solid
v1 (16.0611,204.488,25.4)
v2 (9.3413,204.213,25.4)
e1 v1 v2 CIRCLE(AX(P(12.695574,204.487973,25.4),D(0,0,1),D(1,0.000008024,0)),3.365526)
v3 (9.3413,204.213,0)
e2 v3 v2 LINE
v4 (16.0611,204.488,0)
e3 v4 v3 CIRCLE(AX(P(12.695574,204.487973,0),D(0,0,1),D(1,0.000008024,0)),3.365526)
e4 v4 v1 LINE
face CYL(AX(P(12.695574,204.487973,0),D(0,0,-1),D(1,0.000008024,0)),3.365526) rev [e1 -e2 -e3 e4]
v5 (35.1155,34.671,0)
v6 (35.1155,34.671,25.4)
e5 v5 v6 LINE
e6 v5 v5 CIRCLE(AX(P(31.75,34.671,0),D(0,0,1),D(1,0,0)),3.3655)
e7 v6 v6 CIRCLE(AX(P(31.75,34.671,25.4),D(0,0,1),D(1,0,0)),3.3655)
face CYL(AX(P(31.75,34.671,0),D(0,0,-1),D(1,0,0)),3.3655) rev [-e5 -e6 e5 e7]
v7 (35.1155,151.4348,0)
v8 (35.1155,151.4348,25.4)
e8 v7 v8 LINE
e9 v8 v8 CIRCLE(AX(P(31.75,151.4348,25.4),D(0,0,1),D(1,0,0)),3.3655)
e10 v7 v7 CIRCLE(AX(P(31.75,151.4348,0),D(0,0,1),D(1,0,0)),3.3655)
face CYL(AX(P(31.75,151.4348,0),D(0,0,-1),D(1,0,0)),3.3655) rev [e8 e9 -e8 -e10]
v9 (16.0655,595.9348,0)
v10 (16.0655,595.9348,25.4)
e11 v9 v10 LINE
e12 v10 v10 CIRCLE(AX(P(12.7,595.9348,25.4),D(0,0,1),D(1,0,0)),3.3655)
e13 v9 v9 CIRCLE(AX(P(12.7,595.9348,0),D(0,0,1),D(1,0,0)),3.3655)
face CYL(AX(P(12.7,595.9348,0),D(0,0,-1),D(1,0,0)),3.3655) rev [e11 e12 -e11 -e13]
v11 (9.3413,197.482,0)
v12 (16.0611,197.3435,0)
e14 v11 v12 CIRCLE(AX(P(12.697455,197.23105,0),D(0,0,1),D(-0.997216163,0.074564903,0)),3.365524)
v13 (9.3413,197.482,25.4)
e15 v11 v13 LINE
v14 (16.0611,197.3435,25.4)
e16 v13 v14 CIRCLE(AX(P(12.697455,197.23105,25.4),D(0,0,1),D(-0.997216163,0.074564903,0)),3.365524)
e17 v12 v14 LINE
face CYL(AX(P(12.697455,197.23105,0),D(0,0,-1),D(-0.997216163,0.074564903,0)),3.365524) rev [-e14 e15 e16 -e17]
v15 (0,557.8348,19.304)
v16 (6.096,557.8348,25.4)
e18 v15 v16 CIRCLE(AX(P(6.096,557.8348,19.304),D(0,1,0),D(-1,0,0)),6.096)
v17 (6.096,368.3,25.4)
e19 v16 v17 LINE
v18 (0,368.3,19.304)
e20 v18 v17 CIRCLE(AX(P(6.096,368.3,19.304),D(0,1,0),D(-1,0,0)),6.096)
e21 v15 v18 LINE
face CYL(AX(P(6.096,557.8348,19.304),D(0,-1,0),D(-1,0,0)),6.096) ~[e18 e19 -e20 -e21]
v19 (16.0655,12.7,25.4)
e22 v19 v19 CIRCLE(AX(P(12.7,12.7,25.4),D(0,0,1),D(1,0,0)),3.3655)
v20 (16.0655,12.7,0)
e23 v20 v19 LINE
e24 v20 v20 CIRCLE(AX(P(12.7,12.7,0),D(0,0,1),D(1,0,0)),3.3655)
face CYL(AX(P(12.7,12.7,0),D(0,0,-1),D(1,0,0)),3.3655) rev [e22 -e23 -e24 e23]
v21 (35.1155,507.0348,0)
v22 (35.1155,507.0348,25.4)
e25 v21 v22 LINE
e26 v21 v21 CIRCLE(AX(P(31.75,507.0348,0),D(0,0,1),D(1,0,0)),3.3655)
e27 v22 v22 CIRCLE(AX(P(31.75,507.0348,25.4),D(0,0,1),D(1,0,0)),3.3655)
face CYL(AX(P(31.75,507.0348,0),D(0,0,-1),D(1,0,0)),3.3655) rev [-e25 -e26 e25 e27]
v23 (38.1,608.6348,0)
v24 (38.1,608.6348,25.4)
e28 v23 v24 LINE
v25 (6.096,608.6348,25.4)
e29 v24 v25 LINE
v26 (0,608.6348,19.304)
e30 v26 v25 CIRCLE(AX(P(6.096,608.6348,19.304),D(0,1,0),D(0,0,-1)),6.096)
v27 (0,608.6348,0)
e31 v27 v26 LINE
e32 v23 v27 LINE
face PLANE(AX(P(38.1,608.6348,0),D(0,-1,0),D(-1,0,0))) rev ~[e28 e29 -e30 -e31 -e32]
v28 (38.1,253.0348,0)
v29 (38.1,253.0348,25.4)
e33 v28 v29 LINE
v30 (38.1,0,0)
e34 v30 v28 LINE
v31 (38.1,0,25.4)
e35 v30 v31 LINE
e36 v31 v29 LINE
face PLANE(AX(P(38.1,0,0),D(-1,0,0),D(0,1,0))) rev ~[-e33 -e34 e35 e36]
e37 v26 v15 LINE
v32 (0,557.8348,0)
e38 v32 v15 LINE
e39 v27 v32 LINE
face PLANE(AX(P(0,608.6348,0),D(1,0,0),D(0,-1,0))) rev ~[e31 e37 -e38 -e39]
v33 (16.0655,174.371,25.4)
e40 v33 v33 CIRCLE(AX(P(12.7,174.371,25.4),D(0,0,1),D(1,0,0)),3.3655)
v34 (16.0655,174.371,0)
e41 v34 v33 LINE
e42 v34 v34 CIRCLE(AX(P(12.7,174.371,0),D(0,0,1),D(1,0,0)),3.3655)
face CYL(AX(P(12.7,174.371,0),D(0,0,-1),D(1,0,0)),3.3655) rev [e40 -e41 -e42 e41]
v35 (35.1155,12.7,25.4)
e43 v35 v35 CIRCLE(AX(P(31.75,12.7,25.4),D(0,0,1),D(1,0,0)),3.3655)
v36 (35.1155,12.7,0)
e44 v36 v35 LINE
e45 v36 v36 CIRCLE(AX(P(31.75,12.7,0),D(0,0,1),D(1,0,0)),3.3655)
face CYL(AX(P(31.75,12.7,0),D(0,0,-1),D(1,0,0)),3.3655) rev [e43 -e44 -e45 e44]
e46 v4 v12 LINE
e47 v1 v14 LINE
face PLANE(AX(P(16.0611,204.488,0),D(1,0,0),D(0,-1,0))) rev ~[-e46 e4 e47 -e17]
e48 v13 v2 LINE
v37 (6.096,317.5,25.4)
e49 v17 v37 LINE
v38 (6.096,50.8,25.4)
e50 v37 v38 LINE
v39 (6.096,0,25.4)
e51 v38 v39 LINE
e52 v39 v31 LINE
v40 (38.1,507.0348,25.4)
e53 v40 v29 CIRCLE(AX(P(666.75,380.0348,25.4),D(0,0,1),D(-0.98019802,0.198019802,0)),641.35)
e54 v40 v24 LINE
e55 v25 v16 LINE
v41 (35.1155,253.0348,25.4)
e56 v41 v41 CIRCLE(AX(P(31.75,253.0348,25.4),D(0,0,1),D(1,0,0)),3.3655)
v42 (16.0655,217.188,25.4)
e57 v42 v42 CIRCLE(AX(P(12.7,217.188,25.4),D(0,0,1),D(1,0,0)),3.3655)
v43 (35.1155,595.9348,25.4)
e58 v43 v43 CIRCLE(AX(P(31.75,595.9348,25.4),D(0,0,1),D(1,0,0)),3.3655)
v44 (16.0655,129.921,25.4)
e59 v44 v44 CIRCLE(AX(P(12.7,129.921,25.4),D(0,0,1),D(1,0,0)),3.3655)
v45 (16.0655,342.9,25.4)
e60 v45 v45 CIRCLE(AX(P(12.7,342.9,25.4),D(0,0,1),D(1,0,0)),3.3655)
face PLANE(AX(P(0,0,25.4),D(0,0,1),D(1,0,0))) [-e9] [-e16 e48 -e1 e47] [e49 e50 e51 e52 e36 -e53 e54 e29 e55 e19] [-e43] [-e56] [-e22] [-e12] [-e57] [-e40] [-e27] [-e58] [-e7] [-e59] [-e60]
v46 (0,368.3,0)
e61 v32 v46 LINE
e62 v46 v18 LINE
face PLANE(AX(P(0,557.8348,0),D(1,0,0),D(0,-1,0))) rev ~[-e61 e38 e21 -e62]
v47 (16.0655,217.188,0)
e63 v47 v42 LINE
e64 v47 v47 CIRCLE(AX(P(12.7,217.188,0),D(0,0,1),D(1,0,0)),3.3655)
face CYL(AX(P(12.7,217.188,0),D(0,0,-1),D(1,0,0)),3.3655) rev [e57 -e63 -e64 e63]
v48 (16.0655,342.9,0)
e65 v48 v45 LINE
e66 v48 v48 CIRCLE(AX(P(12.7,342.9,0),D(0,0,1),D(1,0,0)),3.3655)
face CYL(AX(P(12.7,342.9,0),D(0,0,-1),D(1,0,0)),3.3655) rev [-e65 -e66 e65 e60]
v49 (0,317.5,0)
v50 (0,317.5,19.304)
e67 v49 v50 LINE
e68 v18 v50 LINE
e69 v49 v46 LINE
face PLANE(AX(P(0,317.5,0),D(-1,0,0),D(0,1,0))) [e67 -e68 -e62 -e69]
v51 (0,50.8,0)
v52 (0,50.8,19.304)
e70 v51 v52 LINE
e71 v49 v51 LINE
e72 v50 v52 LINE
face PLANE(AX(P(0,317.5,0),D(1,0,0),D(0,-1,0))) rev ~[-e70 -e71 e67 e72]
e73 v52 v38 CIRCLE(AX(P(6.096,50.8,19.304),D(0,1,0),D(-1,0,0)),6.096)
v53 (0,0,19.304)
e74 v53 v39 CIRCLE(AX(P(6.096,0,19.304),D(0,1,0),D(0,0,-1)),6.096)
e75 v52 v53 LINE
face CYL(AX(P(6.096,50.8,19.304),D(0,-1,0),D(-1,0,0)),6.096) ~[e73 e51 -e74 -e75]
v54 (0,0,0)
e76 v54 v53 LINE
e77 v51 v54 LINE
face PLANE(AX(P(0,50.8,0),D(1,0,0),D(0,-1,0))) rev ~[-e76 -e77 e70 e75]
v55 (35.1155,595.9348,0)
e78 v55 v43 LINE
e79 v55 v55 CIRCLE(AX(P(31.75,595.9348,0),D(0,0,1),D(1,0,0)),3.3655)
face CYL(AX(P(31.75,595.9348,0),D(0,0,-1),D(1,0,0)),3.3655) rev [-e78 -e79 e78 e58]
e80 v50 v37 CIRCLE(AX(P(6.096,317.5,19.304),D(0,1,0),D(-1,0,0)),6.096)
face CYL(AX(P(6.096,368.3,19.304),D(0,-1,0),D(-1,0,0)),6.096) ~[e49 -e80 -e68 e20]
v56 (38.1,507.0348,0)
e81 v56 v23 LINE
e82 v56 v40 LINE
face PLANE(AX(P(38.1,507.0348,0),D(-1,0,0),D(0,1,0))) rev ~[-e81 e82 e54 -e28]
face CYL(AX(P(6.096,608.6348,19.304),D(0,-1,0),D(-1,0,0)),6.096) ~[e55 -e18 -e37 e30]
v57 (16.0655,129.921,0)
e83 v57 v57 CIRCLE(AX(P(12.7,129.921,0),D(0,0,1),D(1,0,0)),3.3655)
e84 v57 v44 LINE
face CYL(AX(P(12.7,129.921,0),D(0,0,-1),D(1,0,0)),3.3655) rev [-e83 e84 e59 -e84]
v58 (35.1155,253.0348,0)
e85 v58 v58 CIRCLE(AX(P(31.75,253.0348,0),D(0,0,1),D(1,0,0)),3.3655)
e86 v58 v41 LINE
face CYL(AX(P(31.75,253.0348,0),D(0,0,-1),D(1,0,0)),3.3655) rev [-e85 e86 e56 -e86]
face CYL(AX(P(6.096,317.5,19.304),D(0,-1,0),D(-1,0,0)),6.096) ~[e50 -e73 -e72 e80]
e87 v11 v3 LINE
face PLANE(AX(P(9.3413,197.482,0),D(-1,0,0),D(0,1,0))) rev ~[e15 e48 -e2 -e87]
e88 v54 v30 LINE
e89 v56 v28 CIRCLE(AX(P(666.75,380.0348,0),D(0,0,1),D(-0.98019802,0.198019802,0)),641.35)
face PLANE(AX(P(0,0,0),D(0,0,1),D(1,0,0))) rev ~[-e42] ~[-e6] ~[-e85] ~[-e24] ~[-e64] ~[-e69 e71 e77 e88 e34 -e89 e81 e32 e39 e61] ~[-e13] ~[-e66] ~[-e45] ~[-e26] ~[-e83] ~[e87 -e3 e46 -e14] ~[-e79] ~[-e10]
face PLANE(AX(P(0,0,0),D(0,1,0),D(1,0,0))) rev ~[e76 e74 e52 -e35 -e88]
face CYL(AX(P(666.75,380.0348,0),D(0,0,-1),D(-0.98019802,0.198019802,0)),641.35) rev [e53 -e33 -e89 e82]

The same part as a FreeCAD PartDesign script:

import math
import FreeCAD as App
import Part
import Sketcher
Q = App.Units.Quantity


def edges_at(feature, points):
    """Names of the edges that pass closest to the given points."""
    edges = feature.Shape.Edges
    near = lambda p: min(range(len(edges)), key=lambda i: edges[i].distToShape(Part.Vertex(*p))[0])
    return sorted({f"Edge{near(p) + 1}" for p in points})

doc = App.newDocument("Part")
params = doc.addObject("Spreadsheet::Sheet", "Params")
for row, (alias, value) in enumerate([
    ("sketch1_height", "4 in"),
    ("sketch1_radius", "25.25 in"),
    ("sketch1_diameter", "0.265 in"),
    ("sketch1_width", "1.5 in"),
    ("sketch1_height2", "0.265 in"),
    ("pad1_length", "1 in"),
    ("fillet_radius", "0.24 in"),
], start=1):
    params.set(f"A{row}", alias)
    params.set(f"B{row}", "=" + value)
    params.setAlias(f"B{row}", alias)

body = doc.addObject("PartDesign::Body", "Body")

sketch1 = doc.addObject("Sketcher::SketchObject", "Sketch")
body.addObject(sketch1)
sketch1.AttachmentSupport = (doc.XY_Plane, [""])
sketch1.MapMode = "FlatFace"
sketch1.addGeometry(Part.LineSegment(App.Vector(0, 608.6, 0), App.Vector(0, 0, 0)), False)
sketch1.addGeometry(Part.LineSegment(App.Vector(0, 0, 0), App.Vector(38.1, 0, 0)), False)
sketch1.addGeometry(Part.LineSegment(App.Vector(38.1, 0, 0), App.Vector(38.1, 253, 0)), False)
sketch1.addGeometry(Part.ArcOfCircle(Part.Circle(App.Vector(666.8, 380, 0), App.Vector(0, 0, 1), 641.4), math.radians(169), math.radians(191)), False)
sketch1.addGeometry(Part.LineSegment(App.Vector(38.1, 507, 0), App.Vector(38.1, 608.6, 0)), False)
sketch1.addGeometry(Part.LineSegment(App.Vector(38.1, 608.6, 0), App.Vector(0, 608.6, 0)), False)
sketch1.addGeometry(Part.Circle(App.Vector(12.7, 12.7, 0), App.Vector(0, 0, 1), 3.4), False)
sketch1.addGeometry(Part.Circle(App.Vector(12.7, 129.9, 0), App.Vector(0, 0, 1), 3.4), False)
sketch1.addGeometry(Part.Circle(App.Vector(12.7, 174.4, 0), App.Vector(0, 0, 1), 3.4), False)
sketch1.addGeometry(Part.ArcOfCircle(Part.Circle(App.Vector(12.7, 197.2, 0), App.Vector(0, 0, 1), 3.4), math.radians(176), math.radians(362)), False)
sketch1.addGeometry(Part.LineSegment(App.Vector(9.3, 197.5, 0), App.Vector(9.3, 204.2, 0)), False)
sketch1.addGeometry(Part.ArcOfCircle(Part.Circle(App.Vector(12.7, 204.5, 0), App.Vector(0, 0, 1), 3.4), math.radians(0), math.radians(185)), False)
sketch1.addGeometry(Part.LineSegment(App.Vector(16.1, 204.5, 0), App.Vector(16.1, 197.3, 0)), False)
sketch1.addGeometry(Part.Circle(App.Vector(12.7, 217.2, 0), App.Vector(0, 0, 1), 3.4), False)
sketch1.addGeometry(Part.Circle(App.Vector(31.8, 12.7, 0), App.Vector(0, 0, 1), 3.4), False)
sketch1.addGeometry(Part.Circle(App.Vector(31.8, 34.7, 0), App.Vector(0, 0, 1), 3.4), False)
sketch1.addGeometry(Part.Circle(App.Vector(31.8, 151.4, 0), App.Vector(0, 0, 1), 3.4), False)
sketch1.addGeometry(Part.Circle(App.Vector(31.8, 253, 0), App.Vector(0, 0, 1), 3.4), False)
sketch1.addGeometry(Part.Circle(App.Vector(12.7, 342.9, 0), App.Vector(0, 0, 1), 3.4), False)
sketch1.addGeometry(Part.Circle(App.Vector(12.7, 595.9, 0), App.Vector(0, 0, 1), 3.4), False)
sketch1.addGeometry(Part.Circle(App.Vector(31.8, 507, 0), App.Vector(0, 0, 1), 3.4), False)
sketch1.addGeometry(Part.Circle(App.Vector(31.8, 595.9, 0), App.Vector(0, 0, 1), 3.4), False)
sketch1.addConstraint(Sketcher.Constraint("Coincident", 0, 2, 1, 1))
sketch1.addConstraint(Sketcher.Constraint("Coincident", 1, 2, 2, 1))
sketch1.addConstraint(Sketcher.Constraint("Coincident", 2, 2, 3, 2))
sketch1.addConstraint(Sketcher.Constraint("Coincident", 3, 1, 4, 1))
sketch1.addConstraint(Sketcher.Constraint("Coincident", 4, 2, 5, 1))
sketch1.addConstraint(Sketcher.Constraint("Coincident", 5, 2, 0, 1))
sketch1.addConstraint(Sketcher.Constraint("Coincident", 9, 1, 10, 1))
sketch1.addConstraint(Sketcher.Constraint("Coincident", 10, 2, 11, 2))
sketch1.addConstraint(Sketcher.Constraint("Tangent", 11, 1, 12, 1))
sketch1.addConstraint(Sketcher.Constraint("Coincident", 12, 2, 9, 2))
sketch1.addConstraint(Sketcher.Constraint("Vertical", 0))
sketch1.addConstraint(Sketcher.Constraint("Horizontal", 1))
sketch1.addConstraint(Sketcher.Constraint("Vertical", 2))
sketch1.addConstraint(Sketcher.Constraint("Vertical", 4))
sketch1.addConstraint(Sketcher.Constraint("Horizontal", 5))
sketch1.addConstraint(Sketcher.Constraint("Vertical", 10))
sketch1.addConstraint(Sketcher.Constraint("Vertical", 12))
sketch1.addConstraint(Sketcher.Constraint("Coincident", 0, 2, -1, 1))
sketch1.addConstraint(Sketcher.Constraint("Equal", 6, 7))
sketch1.addConstraint(Sketcher.Constraint("Equal", 7, 8))
sketch1.addConstraint(Sketcher.Constraint("Equal", 8, 9))
sketch1.addConstraint(Sketcher.Constraint("Equal", 9, 11))
sketch1.addConstraint(Sketcher.Constraint("Equal", 11, 13))
sketch1.addConstraint(Sketcher.Constraint("Equal", 13, 14))
sketch1.addConstraint(Sketcher.Constraint("Equal", 14, 15))
sketch1.addConstraint(Sketcher.Constraint("Equal", 15, 16))
sketch1.addConstraint(Sketcher.Constraint("Equal", 16, 17))
sketch1.addConstraint(Sketcher.Constraint("Equal", 17, 18))
sketch1.addConstraint(Sketcher.Constraint("Equal", 18, 19))
sketch1.addConstraint(Sketcher.Constraint("Equal", 19, 20))
sketch1.addConstraint(Sketcher.Constraint("Equal", 20, 21))
sketch1.addConstraint(Sketcher.Constraint("Horizontal", 6, 3, 14, 3))
sketch1.addConstraint(Sketcher.Constraint("Horizontal", 19, 3, 21, 3))
sketch1.addConstraint(Sketcher.Constraint("Horizontal", 17, 3, 2, 2))
sketch1.addConstraint(Sketcher.Constraint("Horizontal", 20, 3, 3, 1))
sketch1.addConstraint(Sketcher.Constraint("Vertical", 6, 3, 7, 3))
sketch1.addConstraint(Sketcher.Constraint("Vertical", 7, 3, 8, 3))
sketch1.addConstraint(Sketcher.Constraint("Vertical", 8, 3, 13, 3))
sketch1.addConstraint(Sketcher.Constraint("Vertical", 14, 3, 15, 3))
sketch1.addConstraint(Sketcher.Constraint("Vertical", 15, 3, 16, 3))
sketch1.addConstraint(Sketcher.Constraint("Vertical", 16, 3, 17, 3))
sketch1.addConstraint(Sketcher.Constraint("Vertical", 13, 3, 18, 3))
sketch1.addConstraint(Sketcher.Constraint("Vertical", 18, 3, 19, 3))
sketch1.addConstraint(Sketcher.Constraint("Vertical", 17, 3, 20, 3))
sketch1.addConstraint(Sketcher.Constraint("Vertical", 20, 3, 21, 3))
sketch1.addConstraint(Sketcher.Constraint("Vertical", 2, 2, 3, 1))
sketch1.addConstraint(Sketcher.Constraint("DistanceY", 4, 1, 4, 2, Q("4 in")))
sketch1.addConstraint(Sketcher.Constraint("Radius", 3, Q("25.25 in")))
sketch1.addConstraint(Sketcher.Constraint("Diameter", 6, Q("0.265 in")))
sketch1.addConstraint(Sketcher.Constraint("DistanceX", 1, 1, 1, 2, Q("1.5 in")))
sketch1.addConstraint(Sketcher.Constraint("DistanceY", 16, 3, 17, 3, Q("4 in")))
sketch1.addConstraint(Sketcher.Constraint("DistanceX", 6, 3, 1, 2, Q("1 in")))
sketch1.addConstraint(Sketcher.Constraint("DistanceY", -1, 1, 6, 3, Q("0.5 in")))
sketch1.addConstraint(Sketcher.Constraint("DistanceY", -1, 1, 18, 3, Q("13.5 in")))
sketch1.addConstraint(Sketcher.Constraint("DistanceY", 11, 3, 13, 3, Q("0.5 in")))
sketch1.addConstraint(Sketcher.Constraint("DistanceY", 17, 3, 19, 3, Q("13.5 in")))
sketch1.addConstraint(Sketcher.Constraint("DistanceY", 21, 3, 4, 2, Q("0.5 in")))
sketch1.addConstraint(Sketcher.Constraint("DistanceY", 10, 1, 10, 2, Q("0.265 in")))
sketch1.addConstraint(Sketcher.Constraint("DistanceX", 14, 3, 1, 2, Q("0.25 in")))
sketch1.addConstraint(Sketcher.Constraint("DistanceY", -1, 1, 19, 3, Q("23.462 in")))
sketch1.addConstraint(Sketcher.Constraint("DistanceY", 8, 3, 9, 3, Q("0.9 in")))
sketch1.addConstraint(Sketcher.Constraint("DistanceY", 15, 3, 8, 3, Q("5.5 in")))
sketch1.addConstraint(Sketcher.Constraint("DistanceY", 7, 3, 8, 3, Q("1.75 in")))
sketch1.addConstraint(Sketcher.Constraint("DistanceY", -1, 1, 7, 3, Q("5.115 in")))
sketch1.addConstraint(Sketcher.Constraint("DistanceY", 12, 2, 12, 1, Q("7.1445 mm")))
sketch1.addConstraint(Sketcher.Constraint("DistanceX", -1, 1, 9, 3, Q("0.4999 in")))
sketch1.addConstraint(Sketcher.Constraint("DistanceY", -1, 1, 11, 3, Q("8.0507 in")))
sketch1.setExpression("Constraints[46]", "Params.sketch1_height")
sketch1.setExpression("Constraints[47]", "Params.sketch1_radius")
sketch1.setExpression("Constraints[48]", "Params.sketch1_diameter")
sketch1.setExpression("Constraints[49]", "Params.sketch1_width")
sketch1.setExpression("Constraints[57]", "Params.sketch1_height2")
pad1 = doc.addObject("PartDesign::Pad", "Pad")
body.addObject(pad1)
pad1.Profile = sketch1
pad1.setExpression("Length", "Params.pad1_length")
doc.recompute()

fillet = doc.addObject("PartDesign::Fillet", "Fillet")
body.addObject(fillet)
fillet.Base = (pad1, edges_at(pad1, [(0, 184.15, 25.4), (0, 488.467, 25.4)]))
fillet.setExpression("Radius", "Params.fillet_radius")

doc.recompute()
